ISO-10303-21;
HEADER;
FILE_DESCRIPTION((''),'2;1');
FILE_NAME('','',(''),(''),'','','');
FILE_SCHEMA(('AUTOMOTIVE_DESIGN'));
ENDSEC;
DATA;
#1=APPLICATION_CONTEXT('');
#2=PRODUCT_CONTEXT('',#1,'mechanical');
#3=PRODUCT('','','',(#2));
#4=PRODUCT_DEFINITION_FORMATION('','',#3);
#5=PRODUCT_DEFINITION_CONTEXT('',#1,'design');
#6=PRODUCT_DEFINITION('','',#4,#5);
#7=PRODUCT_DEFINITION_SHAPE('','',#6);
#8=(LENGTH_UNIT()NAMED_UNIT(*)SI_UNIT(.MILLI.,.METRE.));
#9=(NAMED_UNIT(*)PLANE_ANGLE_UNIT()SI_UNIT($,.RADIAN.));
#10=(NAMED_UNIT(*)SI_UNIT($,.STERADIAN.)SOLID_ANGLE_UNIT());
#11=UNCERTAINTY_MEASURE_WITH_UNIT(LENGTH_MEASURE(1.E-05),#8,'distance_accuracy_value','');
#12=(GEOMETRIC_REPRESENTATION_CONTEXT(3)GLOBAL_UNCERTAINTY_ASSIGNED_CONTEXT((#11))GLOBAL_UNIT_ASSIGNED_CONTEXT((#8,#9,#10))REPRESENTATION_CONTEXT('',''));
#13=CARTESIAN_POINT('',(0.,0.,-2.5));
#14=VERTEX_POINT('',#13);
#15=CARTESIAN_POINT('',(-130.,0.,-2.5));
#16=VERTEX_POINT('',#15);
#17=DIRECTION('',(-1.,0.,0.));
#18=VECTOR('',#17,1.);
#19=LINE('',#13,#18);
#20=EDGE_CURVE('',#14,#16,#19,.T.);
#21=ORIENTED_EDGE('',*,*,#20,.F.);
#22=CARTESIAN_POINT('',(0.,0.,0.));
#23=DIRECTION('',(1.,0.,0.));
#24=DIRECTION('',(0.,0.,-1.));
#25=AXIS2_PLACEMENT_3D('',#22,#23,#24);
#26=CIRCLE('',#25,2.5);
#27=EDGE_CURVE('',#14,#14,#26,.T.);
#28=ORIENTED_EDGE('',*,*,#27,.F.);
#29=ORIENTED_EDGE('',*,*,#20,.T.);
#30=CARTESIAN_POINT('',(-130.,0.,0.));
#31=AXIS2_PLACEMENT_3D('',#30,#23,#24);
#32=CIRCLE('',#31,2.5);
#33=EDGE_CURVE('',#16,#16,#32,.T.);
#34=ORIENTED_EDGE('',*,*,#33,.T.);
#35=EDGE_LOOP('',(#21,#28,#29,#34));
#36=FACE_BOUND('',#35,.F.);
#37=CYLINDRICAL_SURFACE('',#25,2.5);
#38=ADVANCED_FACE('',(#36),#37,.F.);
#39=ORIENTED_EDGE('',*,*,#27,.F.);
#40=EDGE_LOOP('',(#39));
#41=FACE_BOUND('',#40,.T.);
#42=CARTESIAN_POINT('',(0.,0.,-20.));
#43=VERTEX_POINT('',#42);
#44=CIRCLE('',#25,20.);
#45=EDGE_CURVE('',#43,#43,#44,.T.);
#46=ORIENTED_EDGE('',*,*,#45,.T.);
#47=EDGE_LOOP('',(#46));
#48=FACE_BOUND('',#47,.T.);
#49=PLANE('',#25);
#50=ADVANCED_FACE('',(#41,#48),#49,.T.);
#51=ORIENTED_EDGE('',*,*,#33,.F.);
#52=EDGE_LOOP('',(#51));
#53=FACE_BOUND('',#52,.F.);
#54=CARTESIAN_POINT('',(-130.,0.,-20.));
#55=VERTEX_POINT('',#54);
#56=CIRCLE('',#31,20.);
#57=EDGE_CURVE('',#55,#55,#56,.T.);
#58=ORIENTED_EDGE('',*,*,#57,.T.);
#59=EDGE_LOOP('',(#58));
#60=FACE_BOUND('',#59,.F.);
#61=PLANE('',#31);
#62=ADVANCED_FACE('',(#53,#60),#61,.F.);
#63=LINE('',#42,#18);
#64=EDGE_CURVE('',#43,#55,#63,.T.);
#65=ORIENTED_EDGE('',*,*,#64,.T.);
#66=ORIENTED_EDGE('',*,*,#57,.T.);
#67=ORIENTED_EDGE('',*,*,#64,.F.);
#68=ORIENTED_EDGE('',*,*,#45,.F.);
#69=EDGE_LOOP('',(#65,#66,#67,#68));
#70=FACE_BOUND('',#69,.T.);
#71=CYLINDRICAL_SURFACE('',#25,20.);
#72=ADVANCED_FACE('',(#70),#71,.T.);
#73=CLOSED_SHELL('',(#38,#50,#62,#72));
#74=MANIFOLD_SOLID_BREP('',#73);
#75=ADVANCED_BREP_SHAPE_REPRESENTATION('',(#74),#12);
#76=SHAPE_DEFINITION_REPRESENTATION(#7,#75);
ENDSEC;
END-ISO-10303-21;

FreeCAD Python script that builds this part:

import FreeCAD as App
import Part
import Sketcher

V = App.Vector
Q = App.Units.Quantity

doc = App.newDocument("Part")
body = doc.addObject("PartDesign::Body", "Body")

sketch1 = body.newObject("Sketcher::SketchObject", "Sketch")
sketch1.AttachmentSupport = (doc.getObject("YZ_Plane"), [""])
sketch1.MapMode = "FlatFace"
sketch1.addGeometry([
    Part.Circle(V(0, 0, 0), V(0, 0, 1), 20),
    Part.Circle(V(0, 0, 0), V(0, 0, 1), 2.5),
], False)
sketch1.addConstraint([
    Sketcher.Constraint("Coincident", 0, 3, -1, 1),
    Sketcher.Constraint("Coincident", 1, 3, -1, 1),
    Sketcher.Constraint("Diameter", 1, Q("5 mm")),
    Sketcher.Constraint("Diameter", 0, Q("40 mm")),
])
pad1 = body.newObject("PartDesign::Pad", "Pad")
pad1.Profile = sketch1
pad1.Length = 130
pad1.Reversed = True

doc.recompute()
